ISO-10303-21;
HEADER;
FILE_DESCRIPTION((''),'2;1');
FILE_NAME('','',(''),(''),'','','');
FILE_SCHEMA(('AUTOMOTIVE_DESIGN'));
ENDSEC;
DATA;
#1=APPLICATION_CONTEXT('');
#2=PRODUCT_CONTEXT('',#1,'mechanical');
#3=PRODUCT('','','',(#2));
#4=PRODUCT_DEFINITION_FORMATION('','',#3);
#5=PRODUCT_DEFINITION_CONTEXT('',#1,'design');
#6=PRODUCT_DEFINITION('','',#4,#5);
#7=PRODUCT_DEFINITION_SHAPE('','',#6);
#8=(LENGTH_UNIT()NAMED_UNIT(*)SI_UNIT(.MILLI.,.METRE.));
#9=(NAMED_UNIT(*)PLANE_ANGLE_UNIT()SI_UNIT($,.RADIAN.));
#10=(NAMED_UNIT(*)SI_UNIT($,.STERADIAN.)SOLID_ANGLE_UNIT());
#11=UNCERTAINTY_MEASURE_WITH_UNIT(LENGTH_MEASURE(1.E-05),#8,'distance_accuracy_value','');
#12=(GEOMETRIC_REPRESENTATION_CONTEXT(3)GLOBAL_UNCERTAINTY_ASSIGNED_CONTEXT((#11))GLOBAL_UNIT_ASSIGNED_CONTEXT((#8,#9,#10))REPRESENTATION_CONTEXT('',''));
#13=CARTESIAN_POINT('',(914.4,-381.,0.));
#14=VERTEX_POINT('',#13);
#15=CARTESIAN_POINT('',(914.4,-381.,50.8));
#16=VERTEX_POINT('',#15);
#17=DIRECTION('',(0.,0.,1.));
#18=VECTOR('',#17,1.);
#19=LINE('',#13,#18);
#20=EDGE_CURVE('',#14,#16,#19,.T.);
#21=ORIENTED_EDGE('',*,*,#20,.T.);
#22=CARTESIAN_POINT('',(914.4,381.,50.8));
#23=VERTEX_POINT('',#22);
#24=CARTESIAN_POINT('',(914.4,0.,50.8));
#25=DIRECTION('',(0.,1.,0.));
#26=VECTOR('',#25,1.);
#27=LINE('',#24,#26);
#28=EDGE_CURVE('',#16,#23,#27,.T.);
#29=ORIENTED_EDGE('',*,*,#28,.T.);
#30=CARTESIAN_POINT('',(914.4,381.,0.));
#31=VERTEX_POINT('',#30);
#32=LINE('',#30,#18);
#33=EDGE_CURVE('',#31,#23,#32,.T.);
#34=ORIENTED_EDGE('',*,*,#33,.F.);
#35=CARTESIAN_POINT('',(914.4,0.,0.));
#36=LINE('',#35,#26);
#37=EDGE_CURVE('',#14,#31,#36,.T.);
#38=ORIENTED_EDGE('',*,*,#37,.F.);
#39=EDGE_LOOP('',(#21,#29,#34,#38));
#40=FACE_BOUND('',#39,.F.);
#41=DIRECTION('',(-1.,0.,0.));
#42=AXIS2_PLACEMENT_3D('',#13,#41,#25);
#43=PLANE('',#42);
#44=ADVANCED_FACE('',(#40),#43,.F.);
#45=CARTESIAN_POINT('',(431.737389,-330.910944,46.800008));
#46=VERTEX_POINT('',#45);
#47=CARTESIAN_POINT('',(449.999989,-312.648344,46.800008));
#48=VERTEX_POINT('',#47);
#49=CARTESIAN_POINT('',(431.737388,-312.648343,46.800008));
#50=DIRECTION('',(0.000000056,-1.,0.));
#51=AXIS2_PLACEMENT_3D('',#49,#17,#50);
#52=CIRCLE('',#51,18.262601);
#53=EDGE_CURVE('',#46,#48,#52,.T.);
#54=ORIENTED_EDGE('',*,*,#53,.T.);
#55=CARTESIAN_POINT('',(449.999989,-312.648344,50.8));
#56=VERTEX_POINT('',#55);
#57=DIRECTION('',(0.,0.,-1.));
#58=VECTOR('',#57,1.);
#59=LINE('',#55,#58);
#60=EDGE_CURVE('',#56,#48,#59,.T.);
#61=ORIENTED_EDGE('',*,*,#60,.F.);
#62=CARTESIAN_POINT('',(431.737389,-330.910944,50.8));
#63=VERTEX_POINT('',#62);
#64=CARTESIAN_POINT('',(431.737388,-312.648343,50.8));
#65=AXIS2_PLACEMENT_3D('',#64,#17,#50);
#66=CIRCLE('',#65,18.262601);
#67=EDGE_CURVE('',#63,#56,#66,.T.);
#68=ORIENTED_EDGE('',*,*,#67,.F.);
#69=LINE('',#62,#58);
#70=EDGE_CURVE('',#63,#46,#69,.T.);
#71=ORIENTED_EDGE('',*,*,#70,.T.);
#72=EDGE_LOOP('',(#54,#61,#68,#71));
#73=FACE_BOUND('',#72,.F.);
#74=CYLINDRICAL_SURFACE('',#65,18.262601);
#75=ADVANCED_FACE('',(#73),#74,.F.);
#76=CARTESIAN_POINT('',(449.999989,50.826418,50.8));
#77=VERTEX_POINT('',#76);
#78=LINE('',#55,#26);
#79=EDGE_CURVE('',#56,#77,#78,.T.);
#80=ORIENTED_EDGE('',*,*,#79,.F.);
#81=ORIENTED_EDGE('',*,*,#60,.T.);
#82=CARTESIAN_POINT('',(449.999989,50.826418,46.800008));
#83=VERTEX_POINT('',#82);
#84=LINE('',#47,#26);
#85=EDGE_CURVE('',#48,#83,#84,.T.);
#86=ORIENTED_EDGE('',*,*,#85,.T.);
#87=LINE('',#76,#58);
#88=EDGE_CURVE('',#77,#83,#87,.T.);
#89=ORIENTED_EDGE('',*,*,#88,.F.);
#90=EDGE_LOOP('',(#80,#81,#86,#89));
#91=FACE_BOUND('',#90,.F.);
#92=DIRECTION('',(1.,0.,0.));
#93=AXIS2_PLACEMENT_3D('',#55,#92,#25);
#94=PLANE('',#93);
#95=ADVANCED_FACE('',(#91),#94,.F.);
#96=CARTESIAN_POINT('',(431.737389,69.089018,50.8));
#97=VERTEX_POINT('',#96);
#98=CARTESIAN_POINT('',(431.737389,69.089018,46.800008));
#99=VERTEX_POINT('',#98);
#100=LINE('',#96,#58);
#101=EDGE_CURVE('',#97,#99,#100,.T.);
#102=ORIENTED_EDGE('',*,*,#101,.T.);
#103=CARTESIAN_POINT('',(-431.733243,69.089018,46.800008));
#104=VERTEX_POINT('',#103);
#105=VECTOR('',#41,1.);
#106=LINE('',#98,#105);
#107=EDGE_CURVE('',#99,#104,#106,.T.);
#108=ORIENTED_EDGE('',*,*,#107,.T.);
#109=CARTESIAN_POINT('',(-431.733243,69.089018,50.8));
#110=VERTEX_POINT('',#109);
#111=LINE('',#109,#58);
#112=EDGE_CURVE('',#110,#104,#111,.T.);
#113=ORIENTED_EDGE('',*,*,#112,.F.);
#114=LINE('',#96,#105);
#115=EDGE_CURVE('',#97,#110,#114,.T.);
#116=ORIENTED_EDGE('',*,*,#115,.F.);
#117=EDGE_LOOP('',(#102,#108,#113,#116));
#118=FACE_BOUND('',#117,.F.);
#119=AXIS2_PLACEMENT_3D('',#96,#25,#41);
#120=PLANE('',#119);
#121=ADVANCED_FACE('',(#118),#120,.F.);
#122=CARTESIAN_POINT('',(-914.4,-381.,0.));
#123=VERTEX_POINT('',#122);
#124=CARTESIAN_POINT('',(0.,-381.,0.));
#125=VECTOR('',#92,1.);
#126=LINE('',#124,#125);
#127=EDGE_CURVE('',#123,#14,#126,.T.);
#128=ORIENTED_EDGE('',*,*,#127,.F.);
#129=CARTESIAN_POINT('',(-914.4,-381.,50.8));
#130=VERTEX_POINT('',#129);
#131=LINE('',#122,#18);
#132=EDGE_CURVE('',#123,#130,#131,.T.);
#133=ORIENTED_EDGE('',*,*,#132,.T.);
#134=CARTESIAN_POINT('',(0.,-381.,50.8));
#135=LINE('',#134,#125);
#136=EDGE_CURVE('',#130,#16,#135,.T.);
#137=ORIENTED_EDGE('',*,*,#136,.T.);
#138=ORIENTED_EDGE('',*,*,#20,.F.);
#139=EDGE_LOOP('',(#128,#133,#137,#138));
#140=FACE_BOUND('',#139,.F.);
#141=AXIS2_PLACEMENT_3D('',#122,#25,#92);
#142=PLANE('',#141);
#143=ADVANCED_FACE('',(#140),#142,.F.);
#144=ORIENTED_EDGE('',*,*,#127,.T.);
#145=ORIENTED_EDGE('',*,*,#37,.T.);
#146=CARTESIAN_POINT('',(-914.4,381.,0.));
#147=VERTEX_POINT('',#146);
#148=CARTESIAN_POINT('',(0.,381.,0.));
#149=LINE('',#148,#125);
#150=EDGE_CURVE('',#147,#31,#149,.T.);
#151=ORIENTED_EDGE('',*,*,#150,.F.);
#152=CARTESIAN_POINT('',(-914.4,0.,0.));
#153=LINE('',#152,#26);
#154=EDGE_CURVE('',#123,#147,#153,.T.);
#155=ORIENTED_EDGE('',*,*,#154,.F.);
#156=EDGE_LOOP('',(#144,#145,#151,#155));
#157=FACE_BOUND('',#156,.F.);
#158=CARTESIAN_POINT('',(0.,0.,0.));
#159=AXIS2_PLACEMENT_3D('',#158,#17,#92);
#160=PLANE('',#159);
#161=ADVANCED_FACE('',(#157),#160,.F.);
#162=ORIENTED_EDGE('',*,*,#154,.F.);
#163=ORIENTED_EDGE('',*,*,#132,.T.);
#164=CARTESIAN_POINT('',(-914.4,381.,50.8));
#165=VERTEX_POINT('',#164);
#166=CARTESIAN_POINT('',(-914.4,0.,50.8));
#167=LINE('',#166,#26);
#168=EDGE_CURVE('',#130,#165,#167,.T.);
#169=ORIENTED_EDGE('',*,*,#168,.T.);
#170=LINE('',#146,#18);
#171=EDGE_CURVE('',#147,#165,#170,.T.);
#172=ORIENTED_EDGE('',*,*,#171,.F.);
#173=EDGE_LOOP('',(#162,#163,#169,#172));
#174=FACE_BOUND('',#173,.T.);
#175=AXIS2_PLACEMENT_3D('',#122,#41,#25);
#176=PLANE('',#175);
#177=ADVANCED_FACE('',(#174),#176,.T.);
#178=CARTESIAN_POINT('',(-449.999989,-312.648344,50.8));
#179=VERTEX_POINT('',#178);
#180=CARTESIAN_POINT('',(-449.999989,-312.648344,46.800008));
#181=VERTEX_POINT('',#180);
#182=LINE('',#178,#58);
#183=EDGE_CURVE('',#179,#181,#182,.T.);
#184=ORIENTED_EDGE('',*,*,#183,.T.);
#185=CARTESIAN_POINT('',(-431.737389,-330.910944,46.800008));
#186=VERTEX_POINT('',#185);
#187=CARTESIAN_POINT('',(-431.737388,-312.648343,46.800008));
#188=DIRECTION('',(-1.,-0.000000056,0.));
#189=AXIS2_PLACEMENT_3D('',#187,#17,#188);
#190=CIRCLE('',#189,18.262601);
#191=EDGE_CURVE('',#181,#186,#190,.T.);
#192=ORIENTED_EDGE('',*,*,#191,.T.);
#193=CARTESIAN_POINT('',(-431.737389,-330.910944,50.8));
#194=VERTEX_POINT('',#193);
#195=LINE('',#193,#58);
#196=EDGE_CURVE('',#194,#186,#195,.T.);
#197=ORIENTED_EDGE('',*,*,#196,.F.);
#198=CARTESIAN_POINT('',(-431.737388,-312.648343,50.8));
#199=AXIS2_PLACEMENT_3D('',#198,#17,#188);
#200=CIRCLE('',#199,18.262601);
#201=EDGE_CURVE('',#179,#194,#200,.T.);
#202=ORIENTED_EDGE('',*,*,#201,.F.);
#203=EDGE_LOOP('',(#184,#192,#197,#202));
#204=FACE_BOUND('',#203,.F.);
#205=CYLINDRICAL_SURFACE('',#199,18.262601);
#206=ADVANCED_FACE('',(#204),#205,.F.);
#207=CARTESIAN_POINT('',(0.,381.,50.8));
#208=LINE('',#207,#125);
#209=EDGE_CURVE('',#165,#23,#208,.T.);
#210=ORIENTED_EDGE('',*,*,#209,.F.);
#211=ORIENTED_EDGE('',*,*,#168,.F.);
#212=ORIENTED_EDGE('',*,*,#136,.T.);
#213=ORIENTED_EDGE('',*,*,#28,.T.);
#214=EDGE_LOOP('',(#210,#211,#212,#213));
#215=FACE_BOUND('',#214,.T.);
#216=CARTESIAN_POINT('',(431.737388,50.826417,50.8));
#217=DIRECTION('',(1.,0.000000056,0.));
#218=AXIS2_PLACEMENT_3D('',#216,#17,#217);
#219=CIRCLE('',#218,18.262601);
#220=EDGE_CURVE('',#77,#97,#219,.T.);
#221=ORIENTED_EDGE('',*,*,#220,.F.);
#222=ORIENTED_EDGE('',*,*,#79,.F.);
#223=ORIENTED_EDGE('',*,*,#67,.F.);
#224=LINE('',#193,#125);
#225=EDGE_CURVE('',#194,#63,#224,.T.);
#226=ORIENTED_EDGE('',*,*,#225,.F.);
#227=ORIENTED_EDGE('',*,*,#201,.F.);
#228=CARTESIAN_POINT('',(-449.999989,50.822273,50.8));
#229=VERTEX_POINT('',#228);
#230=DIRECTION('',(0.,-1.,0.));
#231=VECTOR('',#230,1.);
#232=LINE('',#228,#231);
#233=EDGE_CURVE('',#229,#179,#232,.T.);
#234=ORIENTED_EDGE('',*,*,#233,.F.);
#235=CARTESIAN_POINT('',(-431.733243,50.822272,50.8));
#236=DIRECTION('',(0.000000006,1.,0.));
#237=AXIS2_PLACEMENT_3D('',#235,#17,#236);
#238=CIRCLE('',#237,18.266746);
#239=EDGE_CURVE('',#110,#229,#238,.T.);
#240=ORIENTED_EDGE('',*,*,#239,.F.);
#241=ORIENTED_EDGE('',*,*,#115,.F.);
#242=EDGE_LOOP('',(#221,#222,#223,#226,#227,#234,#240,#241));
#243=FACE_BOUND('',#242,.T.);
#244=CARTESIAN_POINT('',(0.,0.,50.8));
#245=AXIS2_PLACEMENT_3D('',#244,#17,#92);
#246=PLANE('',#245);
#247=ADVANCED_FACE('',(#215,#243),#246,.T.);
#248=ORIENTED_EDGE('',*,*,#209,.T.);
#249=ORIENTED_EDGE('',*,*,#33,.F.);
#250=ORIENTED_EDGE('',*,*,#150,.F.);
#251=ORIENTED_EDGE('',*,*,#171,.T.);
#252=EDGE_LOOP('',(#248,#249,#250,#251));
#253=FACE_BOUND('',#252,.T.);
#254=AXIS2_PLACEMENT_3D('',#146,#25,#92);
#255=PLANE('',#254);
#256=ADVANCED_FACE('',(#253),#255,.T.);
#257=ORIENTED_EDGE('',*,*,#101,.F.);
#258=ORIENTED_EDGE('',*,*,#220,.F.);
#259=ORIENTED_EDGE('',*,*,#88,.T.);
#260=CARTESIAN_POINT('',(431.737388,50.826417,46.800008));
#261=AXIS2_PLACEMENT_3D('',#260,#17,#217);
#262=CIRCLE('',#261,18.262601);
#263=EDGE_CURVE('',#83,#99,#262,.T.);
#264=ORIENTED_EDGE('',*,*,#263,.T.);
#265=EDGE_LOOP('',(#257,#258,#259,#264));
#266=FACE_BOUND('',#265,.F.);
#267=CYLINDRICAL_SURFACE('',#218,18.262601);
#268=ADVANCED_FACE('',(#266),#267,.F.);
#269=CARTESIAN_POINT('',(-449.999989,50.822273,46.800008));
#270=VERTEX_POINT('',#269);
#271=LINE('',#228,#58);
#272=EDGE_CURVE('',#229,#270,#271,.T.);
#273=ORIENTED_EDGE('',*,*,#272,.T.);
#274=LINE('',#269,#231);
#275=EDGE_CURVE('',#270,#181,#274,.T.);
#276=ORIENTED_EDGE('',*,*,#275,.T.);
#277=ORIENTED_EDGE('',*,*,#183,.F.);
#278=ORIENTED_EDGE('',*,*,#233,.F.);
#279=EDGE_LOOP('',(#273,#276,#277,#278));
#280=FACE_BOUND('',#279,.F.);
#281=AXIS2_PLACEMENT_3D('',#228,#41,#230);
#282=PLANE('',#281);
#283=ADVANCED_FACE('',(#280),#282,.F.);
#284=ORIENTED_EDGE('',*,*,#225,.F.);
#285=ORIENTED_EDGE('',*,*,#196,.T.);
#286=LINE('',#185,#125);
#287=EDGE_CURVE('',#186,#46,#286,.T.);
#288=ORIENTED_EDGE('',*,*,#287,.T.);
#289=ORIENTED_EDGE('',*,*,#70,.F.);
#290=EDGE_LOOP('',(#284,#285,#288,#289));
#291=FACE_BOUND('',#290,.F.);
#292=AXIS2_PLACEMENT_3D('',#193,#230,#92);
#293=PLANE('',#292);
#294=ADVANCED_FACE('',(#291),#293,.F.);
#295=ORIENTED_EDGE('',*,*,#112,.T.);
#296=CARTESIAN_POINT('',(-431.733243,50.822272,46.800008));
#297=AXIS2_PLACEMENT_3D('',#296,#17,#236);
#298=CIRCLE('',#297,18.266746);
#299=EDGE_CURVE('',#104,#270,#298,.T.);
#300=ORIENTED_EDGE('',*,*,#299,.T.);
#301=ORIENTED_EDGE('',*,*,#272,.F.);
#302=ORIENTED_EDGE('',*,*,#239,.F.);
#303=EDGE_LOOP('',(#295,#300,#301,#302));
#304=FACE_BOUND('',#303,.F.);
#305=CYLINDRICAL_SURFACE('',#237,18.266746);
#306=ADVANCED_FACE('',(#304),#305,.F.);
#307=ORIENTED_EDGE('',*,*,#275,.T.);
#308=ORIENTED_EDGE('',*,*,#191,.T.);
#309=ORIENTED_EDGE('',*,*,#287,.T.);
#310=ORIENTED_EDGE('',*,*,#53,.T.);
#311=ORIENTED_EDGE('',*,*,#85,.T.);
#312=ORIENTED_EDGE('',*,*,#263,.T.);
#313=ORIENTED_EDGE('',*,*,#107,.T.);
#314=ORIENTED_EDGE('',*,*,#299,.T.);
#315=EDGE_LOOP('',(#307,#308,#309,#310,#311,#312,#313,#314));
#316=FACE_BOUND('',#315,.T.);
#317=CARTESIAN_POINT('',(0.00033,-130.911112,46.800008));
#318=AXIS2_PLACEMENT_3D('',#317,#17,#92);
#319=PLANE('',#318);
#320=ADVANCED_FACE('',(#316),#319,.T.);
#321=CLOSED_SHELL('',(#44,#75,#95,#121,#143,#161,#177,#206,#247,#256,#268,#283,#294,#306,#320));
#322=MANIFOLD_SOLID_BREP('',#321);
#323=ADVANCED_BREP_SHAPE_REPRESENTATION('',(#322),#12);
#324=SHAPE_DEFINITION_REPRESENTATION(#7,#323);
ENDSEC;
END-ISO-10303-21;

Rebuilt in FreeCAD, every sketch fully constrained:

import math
import FreeCAD as App
import Part
import Sketcher

V = App.Vector
Q = App.Units.Quantity


def add_polygon(sketch, points):
    """Adds a closed chain of lines whose ends are joined by coincident constraints."""
    first, n = sketch.GeometryCount, len(points)
    for a, b in zip(points, points[1:] + points[:1]):
        sketch.addGeometry(Part.LineSegment(App.Vector(*a, 0), App.Vector(*b, 0)), False)
    for i in range(n):
        sketch.addConstraint(Sketcher.Constraint("Coincident", first + i, 2, first + (i + 1) % n, 1))

doc = App.newDocument("Part")
body = doc.addObject("PartDesign::Body", "Body")

# Sketch on XY plane
sketch1 = doc.addObject("Sketcher::SketchObject", "Sketch")
body.addObject(sketch1)
sketch1.AttachmentSupport = (doc.XY_Plane, [""])
sketch1.MapMode = "FlatFace"
add_polygon(sketch1, [(-914, 381), (-914, -381), (914, -381), (914, 381)])  # lines 0-3
sketch1.addConstraint(Sketcher.Constraint("Vertical", 0))
sketch1.addConstraint(Sketcher.Constraint("Horizontal", 1))
sketch1.addConstraint(Sketcher.Constraint("Vertical", 2))
sketch1.addConstraint(Sketcher.Constraint("Horizontal", 3))
sketch1.addConstraint(Sketcher.Constraint("Symmetric", 0, 2, 2, 2, -1, 1))
sketch1.addConstraint(Sketcher.Constraint("DistanceX", 1, 1, 1, 2, Q("72 in")))
sketch1.addConstraint(Sketcher.Constraint("DistanceY", 0, 2, 0, 1, Q("30 in")))
pad1 = doc.addObject("PartDesign::Pad", "Pad")
body.addObject(pad1)
pad1.Profile = sketch1
pad1.Length = Q("2 in")

# Sketch on XY plane
sketch2 = doc.addObject("Sketcher::SketchObject", "Sketch001")
body.addObject(sketch2)
sketch2.AttachmentSupport = (doc.XY_Plane, [""])
sketch2.MapMode = "FlatFace"
sketch2.AttachmentOffset = App.Placement(V(0, 0, 2 * 25.4), App.Rotation())
sketch2.addGeometry(Part.LineSegment(V(-432, -331, 0), V(432, -331, 0)), False)
sketch2.addGeometry(Part.ArcOfCircle(Part.Circle(V(432, -313, 0), V(0, 0, 1), 18), math.radians(-90), math.radians(0)), False)
sketch2.addGeometry(Part.LineSegment(V(450, -313, 0), V(450, 51, 0)), False)
sketch2.addGeometry(Part.ArcOfCircle(Part.Circle(V(432, 51, 0), V(0, 0, 1), 18), math.radians(0), math.radians(90)), False)
sketch2.addGeometry(Part.LineSegment(V(432, 69, 0), V(-432, 69, 0)), False)
sketch2.addGeometry(Part.ArcOfCircle(Part.Circle(V(-432, 51, 0), V(0, 0, 1), 18), math.radians(90), math.radians(180)), False)
sketch2.addGeometry(Part.LineSegment(V(-450, 51, 0), V(-450, -313, 0)), False)
sketch2.addGeometry(Part.ArcOfCircle(Part.Circle(V(-432, -313, 0), V(0, 0, 1), 18), math.radians(-180), math.radians(-90)), False)
sketch2.addConstraint(Sketcher.Constraint("Tangent", 0, 2, 1, 1))
sketch2.addConstraint(Sketcher.Constraint("Tangent", 1, 2, 2, 1))
sketch2.addConstraint(Sketcher.Constraint("Tangent", 2, 2, 3, 1))
sketch2.addConstraint(Sketcher.Constraint("Tangent", 3, 2, 4, 1))
sketch2.addConstraint(Sketcher.Constraint("Tangent", 4, 2, 5, 1))
sketch2.addConstraint(Sketcher.Constraint("Tangent", 5, 2, 6, 1))
sketch2.addConstraint(Sketcher.Constraint("Tangent", 6, 2, 7, 1))
sketch2.addConstraint(Sketcher.Constraint("Tangent", 7, 2, 0, 1))
sketch2.addConstraint(Sketcher.Constraint("Horizontal", 0))
sketch2.addConstraint(Sketcher.Constraint("Vertical", 2))
sketch2.addConstraint(Sketcher.Constraint("Horizontal", 4))
sketch2.addConstraint(Sketcher.Constraint("Vertical", 6))
sketch2.addConstraint(Sketcher.Constraint("Equal", 1, 3))
sketch2.addConstraint(Sketcher.Constraint("Equal", 3, 7))
sketch2.addConstraint(Sketcher.Constraint("Radius", 1, Q("0.719 in")))
sketch2.addConstraint(Sketcher.Constraint("Radius", 5, Q("18.266746 mm")))
sketch2.addConstraint(Sketcher.Constraint("DistanceX", 0, 1, 0, 2, Q("863.474778 mm")))
sketch2.addConstraint(Sketcher.Constraint("DistanceY", 2, 1, 2, 2, Q("363.474762 mm")))
sketch2.addConstraint(Sketcher.Constraint("DistanceX", -1, 1, 0, 2, Q("431.737389 mm")))
sketch2.addConstraint(Sketcher.Constraint("DistanceY", 1, 3, -1, 1, Q("312.648343 mm")))
pocket1 = doc.addObject("PartDesign::Pocket", "Pocket")
body.addObject(pocket1)
pocket1.Profile = sketch2
pocket1.Length = 3.999992

doc.recompute()
